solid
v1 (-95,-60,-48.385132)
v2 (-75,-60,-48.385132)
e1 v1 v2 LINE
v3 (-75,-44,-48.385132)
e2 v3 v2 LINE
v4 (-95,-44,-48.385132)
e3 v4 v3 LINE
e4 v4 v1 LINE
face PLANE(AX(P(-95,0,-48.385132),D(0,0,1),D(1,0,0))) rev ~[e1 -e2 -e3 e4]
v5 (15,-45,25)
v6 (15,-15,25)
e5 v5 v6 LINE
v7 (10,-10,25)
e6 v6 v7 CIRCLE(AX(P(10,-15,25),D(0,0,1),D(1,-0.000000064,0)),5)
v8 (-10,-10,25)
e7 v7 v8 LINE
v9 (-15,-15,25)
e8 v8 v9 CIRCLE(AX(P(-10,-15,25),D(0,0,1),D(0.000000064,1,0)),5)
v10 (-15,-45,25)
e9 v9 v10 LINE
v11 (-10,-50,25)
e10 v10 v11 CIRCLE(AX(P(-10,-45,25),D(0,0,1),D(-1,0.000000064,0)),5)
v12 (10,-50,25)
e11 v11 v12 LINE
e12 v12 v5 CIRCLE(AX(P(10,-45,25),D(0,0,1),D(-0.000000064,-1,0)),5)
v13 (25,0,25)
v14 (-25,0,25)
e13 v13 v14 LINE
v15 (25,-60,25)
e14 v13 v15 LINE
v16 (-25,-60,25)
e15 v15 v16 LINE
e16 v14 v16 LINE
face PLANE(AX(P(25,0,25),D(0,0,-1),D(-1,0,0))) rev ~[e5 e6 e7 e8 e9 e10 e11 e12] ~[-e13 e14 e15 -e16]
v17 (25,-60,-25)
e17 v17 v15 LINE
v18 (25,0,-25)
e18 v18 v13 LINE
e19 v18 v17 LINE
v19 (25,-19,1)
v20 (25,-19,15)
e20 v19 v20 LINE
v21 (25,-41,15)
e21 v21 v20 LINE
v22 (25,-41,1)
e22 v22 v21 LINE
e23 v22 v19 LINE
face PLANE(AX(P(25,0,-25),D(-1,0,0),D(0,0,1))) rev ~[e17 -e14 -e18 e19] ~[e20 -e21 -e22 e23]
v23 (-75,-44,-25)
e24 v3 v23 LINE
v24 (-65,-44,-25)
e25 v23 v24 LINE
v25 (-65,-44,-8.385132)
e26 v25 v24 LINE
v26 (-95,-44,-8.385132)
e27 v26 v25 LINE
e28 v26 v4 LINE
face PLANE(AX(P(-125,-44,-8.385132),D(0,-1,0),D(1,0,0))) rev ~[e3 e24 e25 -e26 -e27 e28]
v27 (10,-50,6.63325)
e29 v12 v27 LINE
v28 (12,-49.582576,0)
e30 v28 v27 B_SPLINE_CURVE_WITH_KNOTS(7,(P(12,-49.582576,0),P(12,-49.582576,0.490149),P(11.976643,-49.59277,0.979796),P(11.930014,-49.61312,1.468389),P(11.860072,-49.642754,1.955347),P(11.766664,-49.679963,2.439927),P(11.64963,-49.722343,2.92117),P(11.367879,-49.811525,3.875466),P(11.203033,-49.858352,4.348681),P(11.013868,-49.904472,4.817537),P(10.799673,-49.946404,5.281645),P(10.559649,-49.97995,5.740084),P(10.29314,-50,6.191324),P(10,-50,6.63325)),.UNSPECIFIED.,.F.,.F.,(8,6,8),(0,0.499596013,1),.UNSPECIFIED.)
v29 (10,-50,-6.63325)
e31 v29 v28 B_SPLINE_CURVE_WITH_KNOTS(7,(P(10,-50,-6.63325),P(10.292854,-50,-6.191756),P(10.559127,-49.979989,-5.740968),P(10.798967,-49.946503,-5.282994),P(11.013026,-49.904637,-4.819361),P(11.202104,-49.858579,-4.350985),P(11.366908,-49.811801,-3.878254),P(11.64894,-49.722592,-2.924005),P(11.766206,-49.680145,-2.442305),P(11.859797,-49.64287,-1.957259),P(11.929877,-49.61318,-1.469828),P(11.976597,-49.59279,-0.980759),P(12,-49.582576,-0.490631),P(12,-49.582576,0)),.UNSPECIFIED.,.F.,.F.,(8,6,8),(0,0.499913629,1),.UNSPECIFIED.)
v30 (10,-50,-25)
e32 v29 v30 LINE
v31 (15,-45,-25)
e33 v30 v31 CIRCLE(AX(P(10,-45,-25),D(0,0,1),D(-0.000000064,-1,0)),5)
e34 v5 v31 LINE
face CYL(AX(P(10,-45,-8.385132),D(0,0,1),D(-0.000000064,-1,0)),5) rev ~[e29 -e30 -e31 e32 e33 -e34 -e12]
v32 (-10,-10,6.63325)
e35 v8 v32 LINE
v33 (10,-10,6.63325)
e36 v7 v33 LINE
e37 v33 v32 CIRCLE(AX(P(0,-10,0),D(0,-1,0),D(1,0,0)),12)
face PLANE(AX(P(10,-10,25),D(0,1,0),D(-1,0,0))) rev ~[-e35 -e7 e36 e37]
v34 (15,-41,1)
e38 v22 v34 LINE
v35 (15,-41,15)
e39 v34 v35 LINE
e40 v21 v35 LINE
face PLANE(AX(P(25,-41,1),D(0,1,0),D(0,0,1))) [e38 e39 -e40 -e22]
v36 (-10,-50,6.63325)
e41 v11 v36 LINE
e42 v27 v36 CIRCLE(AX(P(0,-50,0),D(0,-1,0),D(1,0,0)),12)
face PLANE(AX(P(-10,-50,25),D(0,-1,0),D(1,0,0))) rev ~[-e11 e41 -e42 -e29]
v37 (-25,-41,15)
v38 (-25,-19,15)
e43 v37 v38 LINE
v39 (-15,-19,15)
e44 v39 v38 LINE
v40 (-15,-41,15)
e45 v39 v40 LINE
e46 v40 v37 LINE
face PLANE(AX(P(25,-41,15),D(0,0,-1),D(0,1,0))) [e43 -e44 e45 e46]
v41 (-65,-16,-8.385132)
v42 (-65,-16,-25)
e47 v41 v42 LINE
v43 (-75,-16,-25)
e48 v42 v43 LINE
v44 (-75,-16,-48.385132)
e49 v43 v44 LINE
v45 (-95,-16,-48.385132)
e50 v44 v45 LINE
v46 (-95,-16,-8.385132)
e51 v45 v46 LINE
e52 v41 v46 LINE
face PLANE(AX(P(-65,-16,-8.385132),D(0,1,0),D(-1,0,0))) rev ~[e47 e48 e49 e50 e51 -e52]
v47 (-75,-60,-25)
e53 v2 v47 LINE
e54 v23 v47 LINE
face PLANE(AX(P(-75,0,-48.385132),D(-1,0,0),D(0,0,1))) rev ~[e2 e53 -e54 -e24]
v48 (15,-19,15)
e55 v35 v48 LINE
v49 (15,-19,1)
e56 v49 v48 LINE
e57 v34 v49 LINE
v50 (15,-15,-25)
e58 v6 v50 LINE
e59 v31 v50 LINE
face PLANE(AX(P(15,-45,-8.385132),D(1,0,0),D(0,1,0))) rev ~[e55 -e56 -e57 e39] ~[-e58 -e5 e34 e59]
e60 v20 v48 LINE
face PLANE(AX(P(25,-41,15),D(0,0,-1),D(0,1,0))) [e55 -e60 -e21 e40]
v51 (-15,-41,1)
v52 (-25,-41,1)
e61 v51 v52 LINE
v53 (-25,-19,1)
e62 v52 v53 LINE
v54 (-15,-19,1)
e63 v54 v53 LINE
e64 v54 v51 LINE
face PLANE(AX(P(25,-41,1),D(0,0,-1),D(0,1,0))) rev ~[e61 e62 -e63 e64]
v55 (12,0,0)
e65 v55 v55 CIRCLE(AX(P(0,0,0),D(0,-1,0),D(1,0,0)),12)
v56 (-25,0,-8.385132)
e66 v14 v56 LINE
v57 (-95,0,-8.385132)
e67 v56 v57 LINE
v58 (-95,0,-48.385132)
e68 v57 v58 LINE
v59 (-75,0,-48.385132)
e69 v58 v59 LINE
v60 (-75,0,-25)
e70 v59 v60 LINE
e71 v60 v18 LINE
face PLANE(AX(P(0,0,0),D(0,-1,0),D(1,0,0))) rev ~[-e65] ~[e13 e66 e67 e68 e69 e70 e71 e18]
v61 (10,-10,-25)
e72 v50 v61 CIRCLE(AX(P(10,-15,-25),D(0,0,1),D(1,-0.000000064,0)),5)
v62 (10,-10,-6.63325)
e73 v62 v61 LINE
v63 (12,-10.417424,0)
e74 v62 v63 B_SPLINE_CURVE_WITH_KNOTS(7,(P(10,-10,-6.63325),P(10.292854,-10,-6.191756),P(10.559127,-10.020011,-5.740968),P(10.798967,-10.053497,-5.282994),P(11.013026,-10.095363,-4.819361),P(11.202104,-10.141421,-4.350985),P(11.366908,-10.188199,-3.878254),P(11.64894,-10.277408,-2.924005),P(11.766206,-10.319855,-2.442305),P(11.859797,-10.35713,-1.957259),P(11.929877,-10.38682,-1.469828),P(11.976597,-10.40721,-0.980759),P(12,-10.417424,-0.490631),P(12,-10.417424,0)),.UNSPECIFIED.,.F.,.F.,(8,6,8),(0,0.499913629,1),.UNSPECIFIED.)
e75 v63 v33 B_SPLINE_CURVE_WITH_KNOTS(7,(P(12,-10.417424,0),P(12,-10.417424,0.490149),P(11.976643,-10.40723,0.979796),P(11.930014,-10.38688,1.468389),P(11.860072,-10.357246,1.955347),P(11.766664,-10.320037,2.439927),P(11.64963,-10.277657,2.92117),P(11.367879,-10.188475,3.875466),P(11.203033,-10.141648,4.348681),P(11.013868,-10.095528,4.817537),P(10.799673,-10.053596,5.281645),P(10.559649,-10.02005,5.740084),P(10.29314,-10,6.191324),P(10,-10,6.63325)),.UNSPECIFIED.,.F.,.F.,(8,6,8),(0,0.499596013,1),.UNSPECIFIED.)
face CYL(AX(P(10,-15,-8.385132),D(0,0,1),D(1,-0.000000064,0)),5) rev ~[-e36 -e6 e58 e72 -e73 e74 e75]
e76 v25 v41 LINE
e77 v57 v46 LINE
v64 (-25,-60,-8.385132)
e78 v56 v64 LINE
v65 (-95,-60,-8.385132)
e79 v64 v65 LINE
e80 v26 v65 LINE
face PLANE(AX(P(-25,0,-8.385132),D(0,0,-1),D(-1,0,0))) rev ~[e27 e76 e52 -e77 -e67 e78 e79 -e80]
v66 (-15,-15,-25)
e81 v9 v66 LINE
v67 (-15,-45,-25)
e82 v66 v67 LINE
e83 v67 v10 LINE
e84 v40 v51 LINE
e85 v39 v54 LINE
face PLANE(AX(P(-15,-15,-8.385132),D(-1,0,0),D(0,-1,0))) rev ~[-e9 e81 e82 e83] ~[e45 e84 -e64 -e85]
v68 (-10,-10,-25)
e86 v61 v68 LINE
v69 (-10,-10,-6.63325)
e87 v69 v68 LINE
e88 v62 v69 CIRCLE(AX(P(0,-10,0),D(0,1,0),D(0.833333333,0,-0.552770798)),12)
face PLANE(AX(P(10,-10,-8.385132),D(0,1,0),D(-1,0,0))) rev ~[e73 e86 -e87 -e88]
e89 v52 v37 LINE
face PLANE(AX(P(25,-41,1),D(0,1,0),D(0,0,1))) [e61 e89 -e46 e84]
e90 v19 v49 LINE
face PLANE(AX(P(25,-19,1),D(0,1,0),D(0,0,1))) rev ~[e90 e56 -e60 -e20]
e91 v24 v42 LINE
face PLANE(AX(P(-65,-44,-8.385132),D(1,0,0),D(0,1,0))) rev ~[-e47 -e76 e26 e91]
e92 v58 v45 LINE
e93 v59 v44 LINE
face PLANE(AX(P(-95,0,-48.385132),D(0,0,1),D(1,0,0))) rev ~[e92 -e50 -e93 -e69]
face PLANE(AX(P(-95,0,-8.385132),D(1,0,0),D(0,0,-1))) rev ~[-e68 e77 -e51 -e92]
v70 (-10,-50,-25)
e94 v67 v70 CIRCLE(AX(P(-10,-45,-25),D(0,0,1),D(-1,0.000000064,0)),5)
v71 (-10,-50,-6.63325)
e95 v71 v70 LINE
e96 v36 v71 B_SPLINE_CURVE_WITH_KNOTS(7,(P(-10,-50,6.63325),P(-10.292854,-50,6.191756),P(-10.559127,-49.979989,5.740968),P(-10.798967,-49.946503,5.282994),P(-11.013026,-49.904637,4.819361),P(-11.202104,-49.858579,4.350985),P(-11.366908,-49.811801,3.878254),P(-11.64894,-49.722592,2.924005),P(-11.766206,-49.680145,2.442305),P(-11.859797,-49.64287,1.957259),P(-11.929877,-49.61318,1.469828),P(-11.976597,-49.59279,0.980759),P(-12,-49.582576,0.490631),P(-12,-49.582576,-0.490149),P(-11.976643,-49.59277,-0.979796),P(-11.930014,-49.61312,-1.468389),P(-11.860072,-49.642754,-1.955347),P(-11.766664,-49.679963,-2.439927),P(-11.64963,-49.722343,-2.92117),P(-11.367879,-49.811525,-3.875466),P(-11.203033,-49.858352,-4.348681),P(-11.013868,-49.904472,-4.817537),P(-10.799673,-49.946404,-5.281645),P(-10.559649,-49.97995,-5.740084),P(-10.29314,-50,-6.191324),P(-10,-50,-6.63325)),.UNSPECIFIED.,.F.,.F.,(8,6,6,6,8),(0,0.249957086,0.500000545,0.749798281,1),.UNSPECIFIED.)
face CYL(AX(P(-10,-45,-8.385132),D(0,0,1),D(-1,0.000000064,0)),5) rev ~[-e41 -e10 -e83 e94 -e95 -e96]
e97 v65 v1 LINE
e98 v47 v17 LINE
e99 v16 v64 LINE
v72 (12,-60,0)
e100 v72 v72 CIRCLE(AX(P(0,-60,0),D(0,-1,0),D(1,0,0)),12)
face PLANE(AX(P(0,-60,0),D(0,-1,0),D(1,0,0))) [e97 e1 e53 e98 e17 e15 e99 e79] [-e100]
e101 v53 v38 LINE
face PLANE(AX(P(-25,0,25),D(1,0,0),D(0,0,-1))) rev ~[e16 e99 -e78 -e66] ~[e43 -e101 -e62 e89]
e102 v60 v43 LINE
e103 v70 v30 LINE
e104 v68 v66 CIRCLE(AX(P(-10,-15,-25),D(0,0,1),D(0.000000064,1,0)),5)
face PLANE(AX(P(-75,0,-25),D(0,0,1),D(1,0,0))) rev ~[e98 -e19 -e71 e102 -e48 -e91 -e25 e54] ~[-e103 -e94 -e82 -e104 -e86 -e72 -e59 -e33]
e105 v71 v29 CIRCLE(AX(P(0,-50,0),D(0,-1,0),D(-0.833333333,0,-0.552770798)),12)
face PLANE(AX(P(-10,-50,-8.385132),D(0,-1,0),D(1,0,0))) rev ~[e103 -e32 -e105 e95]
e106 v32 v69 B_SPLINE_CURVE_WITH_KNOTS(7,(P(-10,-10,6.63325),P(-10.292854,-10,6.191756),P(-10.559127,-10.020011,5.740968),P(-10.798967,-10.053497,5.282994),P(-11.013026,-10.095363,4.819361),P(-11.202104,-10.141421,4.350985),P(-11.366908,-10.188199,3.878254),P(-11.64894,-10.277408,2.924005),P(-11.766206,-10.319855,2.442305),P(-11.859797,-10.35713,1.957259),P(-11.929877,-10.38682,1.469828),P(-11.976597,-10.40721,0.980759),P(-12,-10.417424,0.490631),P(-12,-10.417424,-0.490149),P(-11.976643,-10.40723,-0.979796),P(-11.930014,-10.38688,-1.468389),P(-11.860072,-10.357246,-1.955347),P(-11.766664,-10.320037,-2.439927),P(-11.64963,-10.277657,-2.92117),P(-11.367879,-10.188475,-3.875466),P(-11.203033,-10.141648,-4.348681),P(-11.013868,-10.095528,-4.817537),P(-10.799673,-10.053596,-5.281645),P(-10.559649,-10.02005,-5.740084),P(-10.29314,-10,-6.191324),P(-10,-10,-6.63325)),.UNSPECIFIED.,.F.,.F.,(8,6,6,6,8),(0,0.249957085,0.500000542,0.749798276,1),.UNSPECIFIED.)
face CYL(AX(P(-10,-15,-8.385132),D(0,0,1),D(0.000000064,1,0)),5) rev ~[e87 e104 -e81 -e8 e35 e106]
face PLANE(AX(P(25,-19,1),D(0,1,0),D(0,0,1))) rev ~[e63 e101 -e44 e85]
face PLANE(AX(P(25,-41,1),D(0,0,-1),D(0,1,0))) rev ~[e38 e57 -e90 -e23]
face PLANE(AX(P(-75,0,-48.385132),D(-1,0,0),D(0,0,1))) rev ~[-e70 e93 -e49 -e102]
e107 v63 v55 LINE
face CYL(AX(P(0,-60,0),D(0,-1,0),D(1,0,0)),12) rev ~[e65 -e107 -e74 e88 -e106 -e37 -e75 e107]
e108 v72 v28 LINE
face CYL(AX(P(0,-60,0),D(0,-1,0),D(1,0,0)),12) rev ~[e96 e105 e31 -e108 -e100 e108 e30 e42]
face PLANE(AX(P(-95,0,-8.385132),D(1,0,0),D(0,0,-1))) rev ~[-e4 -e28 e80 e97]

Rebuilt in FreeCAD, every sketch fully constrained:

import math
import FreeCAD as App
import Part
import Sketcher
from FreeCAD import Vector

doc = App.newDocument("Part")
body = doc.addObject("PartDesign::Body", "Body")

# Sketch on XZ plane
sketch1 = body.newObject("Sketcher::SketchObject", "Sketch")
sketch1.AttachmentSupport = (doc.getObject("XZ_Plane"), [""])
sketch1.MapMode = "FlatFace"
sketch1.addGeometry(Part.LineSegment(Vector(25, -25, 0), Vector(25, 25, 0)), False)
sketch1.addGeometry(Part.LineSegment(Vector(25, 25, 0), Vector(-25, 25, 0)), False)
sketch1.addGeometry(Part.LineSegment(Vector(-25, 25, 0), Vector(-25, -8.385132, 0)), False)
sketch1.addGeometry(Part.LineSegment(Vector(-25, -8.385132, 0), Vector(-95, -8.385132, 0)), False)
sketch1.addGeometry(Part.LineSegment(Vector(-95, -8.385132, 0), Vector(-95, -48.385132, 0)), False)
sketch1.addGeometry(Part.LineSegment(Vector(-95, -48.385132, 0), Vector(-75, -48.385132, 0)), False)
sketch1.addGeometry(Part.LineSegment(Vector(-75, -48.385132, 0), Vector(-75, -25, 0)), False)
sketch1.addGeometry(Part.LineSegment(Vector(-75, -25, 0), Vector(25, -25, 0)), False)
sketch1.addConstraint(Sketcher.Constraint("Coincident", 0, 2, 1, 1))
sketch1.addConstraint(Sketcher.Constraint("Coincident", 1, 2, 2, 1))
sketch1.addConstraint(Sketcher.Constraint("Coincident", 2, 2, 3, 1))
sketch1.addConstraint(Sketcher.Constraint("Coincident", 3, 2, 4, 1))
sketch1.addConstraint(Sketcher.Constraint("Coincident", 4, 2, 5, 1))
sketch1.addConstraint(Sketcher.Constraint("Coincident", 5, 2, 6, 1))
sketch1.addConstraint(Sketcher.Constraint("Coincident", 6, 2, 7, 1))
sketch1.addConstraint(Sketcher.Constraint("Coincident", 7, 2, 0, 1))
sketch1.addConstraint(Sketcher.Constraint("Vertical", 0))
sketch1.addConstraint(Sketcher.Constraint("Horizontal", 1))
sketch1.addConstraint(Sketcher.Constraint("Vertical", 2))
sketch1.addConstraint(Sketcher.Constraint("Horizontal", 3))
sketch1.addConstraint(Sketcher.Constraint("Vertical", 4))
sketch1.addConstraint(Sketcher.Constraint("Horizontal", 5))
sketch1.addConstraint(Sketcher.Constraint("Vertical", 6))
sketch1.addConstraint(Sketcher.Constraint("Horizontal", 7))
sketch1.addConstraint(Sketcher.Constraint("Symmetric", 1, 2, 7, 2, -1, 1))
sketch1.addConstraint(Sketcher.Constraint("Equal", 1, 0))
sketch1.addConstraint(Sketcher.Constraint("DistanceX", 1, 2, 1, 1, 50.0))
sketch1.addConstraint(Sketcher.Constraint("DistanceX", 3, 2, 3, 1, 70.0))
sketch1.addConstraint(Sketcher.Constraint("DistanceX", 5, 1, 5, 2, 20.0))
sketch1.addConstraint(Sketcher.Constraint("DistanceY", 4, 2, 4, 1, 40.0))
sketch1.addConstraint(Sketcher.Constraint("DistanceY", 6, 1, 6, 2, 23.385132))
pad1 = body.newObject("PartDesign::Pad", "Pad")
pad1.Profile = sketch1
pad1.Length = 60

# Sketch on XZ plane
sketch2 = body.newObject("Sketcher::SketchObject", "Sketch001")
sketch2.AttachmentSupport = (doc.getObject("XZ_Plane"), [""])
sketch2.MapMode = "FlatFace"
sketch2.AttachmentOffset = App.Placement(Vector(0, 0, 60), App.Rotation())
sketch2.addGeometry(Part.Circle(Vector(0, 0, 0), Vector(0, 0, 1), 12), False)
sketch2.addConstraint(Sketcher.Constraint("Coincident", 0, 3, -1, 1))
sketch2.addConstraint(Sketcher.Constraint("Diameter", 0, 24.0))
pocket1 = body.newObject("PartDesign::Pocket", "Pocket")
pocket1.Profile = sketch2
pocket1.Type = "ThroughAll"

# Sketch on XY plane
sketch3 = body.newObject("Sketcher::SketchObject", "Sketch002")
sketch3.AttachmentSupport = (doc.getObject("XY_Plane"), [""])
sketch3.MapMode = "FlatFace"
sketch3.AttachmentOffset = App.Placement(Vector(0, 0, -8.385132), App.Rotation())
sketch3.addGeometry(Part.LineSegment(Vector(-65, -44, 0), Vector(-65, -16, 0)), False)
sketch3.addGeometry(Part.LineSegment(Vector(-65, -16, 0), Vector(-125, -16, 0)), False)
sketch3.addGeometry(Part.LineSegment(Vector(-125, -16, 0), Vector(-125, -44, 0)), False)
sketch3.addGeometry(Part.LineSegment(Vector(-125, -44, 0), Vector(-65, -44, 0)), False)
sketch3.addGeometry(Part.ArcOfCircle(Part.Circle(Vector(-10, -45, 0), Vector(0, 0, 1), 5), math.radians(179.999996), math.radians(270.000004)), False)
sketch3.addGeometry(Part.LineSegment(Vector(-10, -50, 0), Vector(10, -50, 0)), False)
sketch3.addGeometry(Part.ArcOfCircle(Part.Circle(Vector(10, -45, 0), Vector(0, 0, 1), 5), math.radians(-90.000004), math.radians(0.000004)), False)
sketch3.addGeometry(Part.LineSegment(Vector(15, -45, 0), Vector(15, -15, 0)), False)
sketch3.addGeometry(Part.ArcOfCircle(Part.Circle(Vector(10, -15, 0), Vector(0, 0, 1), 5), math.radians(-0.000004), math.radians(90.000004)), False)
sketch3.addGeometry(Part.LineSegment(Vector(10, -10, 0), Vector(-10, -10, 0)), False)
sketch3.addGeometry(Part.ArcOfCircle(Part.Circle(Vector(-10, -15, 0), Vector(0, 0, 1), 5), math.radians(89.999996), math.radians(180.000004)), False)
sketch3.addGeometry(Part.LineSegment(Vector(-15, -15, 0), Vector(-15, -45, 0)), False)
sketch3.addConstraint(Sketcher.Constraint("Coincident", 0, 2, 1, 1))
sketch3.addConstraint(Sketcher.Constraint("Coincident", 1, 2, 2, 1))
sketch3.addConstraint(Sketcher.Constraint("Coincident", 2, 2, 3, 1))
sketch3.addConstraint(Sketcher.Constraint("Coincident", 3, 2, 0, 1))
sketch3.addConstraint(Sketcher.Constraint("Tangent", 4, 2, 5, 1))
sketch3.addConstraint(Sketcher.Constraint("Tangent", 5, 2, 6, 1))
sketch3.addConstraint(Sketcher.Constraint("Tangent", 6, 2, 7, 1))
sketch3.addConstraint(Sketcher.Constraint("Tangent", 7, 2, 8, 1))
sketch3.addConstraint(Sketcher.Constraint("Tangent", 8, 2, 9, 1))
sketch3.addConstraint(Sketcher.Constraint("Tangent", 9, 2, 10, 1))
sketch3.addConstraint(Sketcher.Constraint("Tangent", 10, 2, 11, 1))
sketch3.addConstraint(Sketcher.Constraint("Tangent", 11, 2, 4, 1))
sketch3.addConstraint(Sketcher.Constraint("Vertical", 0))
sketch3.addConstraint(Sketcher.Constraint("Horizontal", 1))
sketch3.addConstraint(Sketcher.Constraint("Vertical", 2))
sketch3.addConstraint(Sketcher.Constraint("Horizontal", 3))
sketch3.addConstraint(Sketcher.Constraint("Horizontal", 5))
sketch3.addConstraint(Sketcher.Constraint("Vertical", 7))
sketch3.addConstraint(Sketcher.Constraint("Horizontal", 9))
sketch3.addConstraint(Sketcher.Constraint("Vertical", 11))
sketch3.addConstraint(Sketcher.Constraint("Equal", 4, 6))
sketch3.addConstraint(Sketcher.Constraint("Equal", 6, 8))
sketch3.addConstraint(Sketcher.Constraint("Equal", 8, 10))
sketch3.addConstraint(Sketcher.Constraint("Radius", 4, 5.0))
sketch3.addConstraint(Sketcher.Constraint("DistanceX", 1, 2, 1, 1, 60.0))
sketch3.addConstraint(Sketcher.Constraint("DistanceX", 5, 1, 5, 2, 20.0))
sketch3.addConstraint(Sketcher.Constraint("DistanceY", 0, 1, 0, 2, 28.0))
sketch3.addConstraint(Sketcher.Constraint("DistanceY", 7, 1, 7, 2, 30.0))
sketch3.addConstraint(Sketcher.Constraint("DistanceX", 4, 3, -1, 1, 10.0))
sketch3.addConstraint(Sketcher.Constraint("DistanceY", 4, 3, -1, 1, 45.0))
sketch3.addConstraint(Sketcher.Constraint("DistanceX", 0, 2, -1, 1, 65.0))
sketch3.addConstraint(Sketcher.Constraint("DistanceY", 0, 2, -1, 1, 16.0))
pocket2 = body.newObject("PartDesign::Pocket", "Pocket001")
pocket2.Profile = sketch3
pocket2.Type = "ThroughAll"

# Sketch on XY plane
sketch4 = body.newObject("Sketcher::SketchObject", "Sketch003")
sketch4.AttachmentSupport = (doc.getObject("XY_Plane"), [""])
sketch4.MapMode = "FlatFace"
sketch4.AttachmentOffset = App.Placement(Vector(0, 0, 25), App.Rotation())
sketch4.addGeometry(Part.ArcOfCircle(Part.Circle(Vector(-10, -45, 0), Vector(0, 0, 1), 5), math.radians(179.999996), math.radians(270.000004)), False)
sketch4.addGeometry(Part.LineSegment(Vector(-10, -50, 0), Vector(10, -50, 0)), False)
sketch4.addGeometry(Part.ArcOfCircle(Part.Circle(Vector(10, -45, 0), Vector(0, 0, 1), 5), math.radians(-90.000004), math.radians(0.000004)), False)
sketch4.addGeometry(Part.LineSegment(Vector(15, -45, 0), Vector(15, -15, 0)), False)
sketch4.addGeometry(Part.ArcOfCircle(Part.Circle(Vector(10, -15, 0), Vector(0, 0, 1), 5), math.radians(-0.000004), math.radians(90.000004)), False)
sketch4.addGeometry(Part.LineSegment(Vector(10, -10, 0), Vector(-10, -10, 0)), False)
sketch4.addGeometry(Part.ArcOfCircle(Part.Circle(Vector(-10, -15, 0), Vector(0, 0, 1), 5), math.radians(89.999996), math.radians(180.000004)), False)
sketch4.addGeometry(Part.LineSegment(Vector(-15, -15, 0), Vector(-15, -45, 0)), False)
sketch4.addConstraint(Sketcher.Constraint("Tangent", 0, 2, 1, 1))
sketch4.addConstraint(Sketcher.Constraint("Tangent", 1, 2, 2, 1))
sketch4.addConstraint(Sketcher.Constraint("Tangent", 2, 2, 3, 1))
sketch4.addConstraint(Sketcher.Constraint("Tangent", 3, 2, 4, 1))
sketch4.addConstraint(Sketcher.Constraint("Tangent", 4, 2, 5, 1))
sketch4.addConstraint(Sketcher.Constraint("Tangent", 5, 2, 6, 1))
sketch4.addConstraint(Sketcher.Constraint("Tangent", 6, 2, 7, 1))
sketch4.addConstraint(Sketcher.Constraint("Tangent", 7, 2, 0, 1))
sketch4.addConstraint(Sketcher.Constraint("Horizontal", 1))
sketch4.addConstraint(Sketcher.Constraint("Vertical", 3))
sketch4.addConstraint(Sketcher.Constraint("Horizontal", 5))
sketch4.addConstraint(Sketcher.Constraint("Vertical", 7))
sketch4.addConstraint(Sketcher.Constraint("Equal", 0, 2))
sketch4.addConstraint(Sketcher.Constraint("Equal", 2, 4))
sketch4.addConstraint(Sketcher.Constraint("Equal", 4, 6))
sketch4.addConstraint(Sketcher.Constraint("Radius", 0, 5.0))
sketch4.addConstraint(Sketcher.Constraint("DistanceX", 1, 1, 1, 2, 20.0))
sketch4.addConstraint(Sketcher.Constraint("DistanceY", 3, 1, 3, 2, 30.0))
sketch4.addConstraint(Sketcher.Constraint("DistanceX", 0, 3, -1, 1, 10.0))
sketch4.addConstraint(Sketcher.Constraint("DistanceY", 0, 3, -1, 1, 45.0))
pocket3 = body.newObject("PartDesign::Pocket", "Pocket002")
pocket3.Profile = sketch4
pocket3.Type = "ThroughAll"

# Sketch on YZ plane
sketch5 = body.newObject("Sketcher::SketchObject", "Sketch004")
sketch5.AttachmentSupport = (doc.getObject("YZ_Plane"), [""])
sketch5.MapMode = "FlatFace"
sketch5.AttachmentOffset = App.Placement(Vector(0, 0, 25), App.Rotation())
sketch5.addGeometry(Part.LineSegment(Vector(-41, 15, 0), Vector(-41, 1, 0)), False)
sketch5.addGeometry(Part.LineSegment(Vector(-41, 1, 0), Vector(-19, 1, 0)), False)
sketch5.addGeometry(Part.LineSegment(Vector(-19, 1, 0), Vector(-19, 15, 0)), False)
sketch5.addGeometry(Part.LineSegment(Vector(-19, 15, 0), Vector(-41, 15, 0)), False)
sketch5.addConstraint(Sketcher.Constraint("Coincident", 0, 2, 1, 1))
sketch5.addConstraint(Sketcher.Constraint("Coincident", 1, 2, 2, 1))
sketch5.addConstraint(Sketcher.Constraint("Coincident", 2, 2, 3, 1))
sketch5.addConstraint(Sketcher.Constraint("Coincident", 3, 2, 0, 1))
sketch5.addConstraint(Sketcher.Constraint("Vertical", 0))
sketch5.addConstraint(Sketcher.Constraint("Horizontal", 1))
sketch5.addConstraint(Sketcher.Constraint("Vertical", 2))
sketch5.addConstraint(Sketcher.Constraint("Horizontal", 3))
sketch5.addConstraint(Sketcher.Constraint("DistanceX", 1, 1, 1, 2, 22.0))
sketch5.addConstraint(Sketcher.Constraint("DistanceY", 0, 2, 0, 1, 14.0))
sketch5.addConstraint(Sketcher.Constraint("DistanceX", 0, 2, -1, 1, 41.0))
sketch5.addConstraint(Sketcher.Constraint("DistanceY", -1, 1, 0, 2, 1.0))
pocket4 = body.newObject("PartDesign::Pocket", "Pocket003")
pocket4.Profile = sketch5
pocket4.Type = "ThroughAll"

doc.recompute()
